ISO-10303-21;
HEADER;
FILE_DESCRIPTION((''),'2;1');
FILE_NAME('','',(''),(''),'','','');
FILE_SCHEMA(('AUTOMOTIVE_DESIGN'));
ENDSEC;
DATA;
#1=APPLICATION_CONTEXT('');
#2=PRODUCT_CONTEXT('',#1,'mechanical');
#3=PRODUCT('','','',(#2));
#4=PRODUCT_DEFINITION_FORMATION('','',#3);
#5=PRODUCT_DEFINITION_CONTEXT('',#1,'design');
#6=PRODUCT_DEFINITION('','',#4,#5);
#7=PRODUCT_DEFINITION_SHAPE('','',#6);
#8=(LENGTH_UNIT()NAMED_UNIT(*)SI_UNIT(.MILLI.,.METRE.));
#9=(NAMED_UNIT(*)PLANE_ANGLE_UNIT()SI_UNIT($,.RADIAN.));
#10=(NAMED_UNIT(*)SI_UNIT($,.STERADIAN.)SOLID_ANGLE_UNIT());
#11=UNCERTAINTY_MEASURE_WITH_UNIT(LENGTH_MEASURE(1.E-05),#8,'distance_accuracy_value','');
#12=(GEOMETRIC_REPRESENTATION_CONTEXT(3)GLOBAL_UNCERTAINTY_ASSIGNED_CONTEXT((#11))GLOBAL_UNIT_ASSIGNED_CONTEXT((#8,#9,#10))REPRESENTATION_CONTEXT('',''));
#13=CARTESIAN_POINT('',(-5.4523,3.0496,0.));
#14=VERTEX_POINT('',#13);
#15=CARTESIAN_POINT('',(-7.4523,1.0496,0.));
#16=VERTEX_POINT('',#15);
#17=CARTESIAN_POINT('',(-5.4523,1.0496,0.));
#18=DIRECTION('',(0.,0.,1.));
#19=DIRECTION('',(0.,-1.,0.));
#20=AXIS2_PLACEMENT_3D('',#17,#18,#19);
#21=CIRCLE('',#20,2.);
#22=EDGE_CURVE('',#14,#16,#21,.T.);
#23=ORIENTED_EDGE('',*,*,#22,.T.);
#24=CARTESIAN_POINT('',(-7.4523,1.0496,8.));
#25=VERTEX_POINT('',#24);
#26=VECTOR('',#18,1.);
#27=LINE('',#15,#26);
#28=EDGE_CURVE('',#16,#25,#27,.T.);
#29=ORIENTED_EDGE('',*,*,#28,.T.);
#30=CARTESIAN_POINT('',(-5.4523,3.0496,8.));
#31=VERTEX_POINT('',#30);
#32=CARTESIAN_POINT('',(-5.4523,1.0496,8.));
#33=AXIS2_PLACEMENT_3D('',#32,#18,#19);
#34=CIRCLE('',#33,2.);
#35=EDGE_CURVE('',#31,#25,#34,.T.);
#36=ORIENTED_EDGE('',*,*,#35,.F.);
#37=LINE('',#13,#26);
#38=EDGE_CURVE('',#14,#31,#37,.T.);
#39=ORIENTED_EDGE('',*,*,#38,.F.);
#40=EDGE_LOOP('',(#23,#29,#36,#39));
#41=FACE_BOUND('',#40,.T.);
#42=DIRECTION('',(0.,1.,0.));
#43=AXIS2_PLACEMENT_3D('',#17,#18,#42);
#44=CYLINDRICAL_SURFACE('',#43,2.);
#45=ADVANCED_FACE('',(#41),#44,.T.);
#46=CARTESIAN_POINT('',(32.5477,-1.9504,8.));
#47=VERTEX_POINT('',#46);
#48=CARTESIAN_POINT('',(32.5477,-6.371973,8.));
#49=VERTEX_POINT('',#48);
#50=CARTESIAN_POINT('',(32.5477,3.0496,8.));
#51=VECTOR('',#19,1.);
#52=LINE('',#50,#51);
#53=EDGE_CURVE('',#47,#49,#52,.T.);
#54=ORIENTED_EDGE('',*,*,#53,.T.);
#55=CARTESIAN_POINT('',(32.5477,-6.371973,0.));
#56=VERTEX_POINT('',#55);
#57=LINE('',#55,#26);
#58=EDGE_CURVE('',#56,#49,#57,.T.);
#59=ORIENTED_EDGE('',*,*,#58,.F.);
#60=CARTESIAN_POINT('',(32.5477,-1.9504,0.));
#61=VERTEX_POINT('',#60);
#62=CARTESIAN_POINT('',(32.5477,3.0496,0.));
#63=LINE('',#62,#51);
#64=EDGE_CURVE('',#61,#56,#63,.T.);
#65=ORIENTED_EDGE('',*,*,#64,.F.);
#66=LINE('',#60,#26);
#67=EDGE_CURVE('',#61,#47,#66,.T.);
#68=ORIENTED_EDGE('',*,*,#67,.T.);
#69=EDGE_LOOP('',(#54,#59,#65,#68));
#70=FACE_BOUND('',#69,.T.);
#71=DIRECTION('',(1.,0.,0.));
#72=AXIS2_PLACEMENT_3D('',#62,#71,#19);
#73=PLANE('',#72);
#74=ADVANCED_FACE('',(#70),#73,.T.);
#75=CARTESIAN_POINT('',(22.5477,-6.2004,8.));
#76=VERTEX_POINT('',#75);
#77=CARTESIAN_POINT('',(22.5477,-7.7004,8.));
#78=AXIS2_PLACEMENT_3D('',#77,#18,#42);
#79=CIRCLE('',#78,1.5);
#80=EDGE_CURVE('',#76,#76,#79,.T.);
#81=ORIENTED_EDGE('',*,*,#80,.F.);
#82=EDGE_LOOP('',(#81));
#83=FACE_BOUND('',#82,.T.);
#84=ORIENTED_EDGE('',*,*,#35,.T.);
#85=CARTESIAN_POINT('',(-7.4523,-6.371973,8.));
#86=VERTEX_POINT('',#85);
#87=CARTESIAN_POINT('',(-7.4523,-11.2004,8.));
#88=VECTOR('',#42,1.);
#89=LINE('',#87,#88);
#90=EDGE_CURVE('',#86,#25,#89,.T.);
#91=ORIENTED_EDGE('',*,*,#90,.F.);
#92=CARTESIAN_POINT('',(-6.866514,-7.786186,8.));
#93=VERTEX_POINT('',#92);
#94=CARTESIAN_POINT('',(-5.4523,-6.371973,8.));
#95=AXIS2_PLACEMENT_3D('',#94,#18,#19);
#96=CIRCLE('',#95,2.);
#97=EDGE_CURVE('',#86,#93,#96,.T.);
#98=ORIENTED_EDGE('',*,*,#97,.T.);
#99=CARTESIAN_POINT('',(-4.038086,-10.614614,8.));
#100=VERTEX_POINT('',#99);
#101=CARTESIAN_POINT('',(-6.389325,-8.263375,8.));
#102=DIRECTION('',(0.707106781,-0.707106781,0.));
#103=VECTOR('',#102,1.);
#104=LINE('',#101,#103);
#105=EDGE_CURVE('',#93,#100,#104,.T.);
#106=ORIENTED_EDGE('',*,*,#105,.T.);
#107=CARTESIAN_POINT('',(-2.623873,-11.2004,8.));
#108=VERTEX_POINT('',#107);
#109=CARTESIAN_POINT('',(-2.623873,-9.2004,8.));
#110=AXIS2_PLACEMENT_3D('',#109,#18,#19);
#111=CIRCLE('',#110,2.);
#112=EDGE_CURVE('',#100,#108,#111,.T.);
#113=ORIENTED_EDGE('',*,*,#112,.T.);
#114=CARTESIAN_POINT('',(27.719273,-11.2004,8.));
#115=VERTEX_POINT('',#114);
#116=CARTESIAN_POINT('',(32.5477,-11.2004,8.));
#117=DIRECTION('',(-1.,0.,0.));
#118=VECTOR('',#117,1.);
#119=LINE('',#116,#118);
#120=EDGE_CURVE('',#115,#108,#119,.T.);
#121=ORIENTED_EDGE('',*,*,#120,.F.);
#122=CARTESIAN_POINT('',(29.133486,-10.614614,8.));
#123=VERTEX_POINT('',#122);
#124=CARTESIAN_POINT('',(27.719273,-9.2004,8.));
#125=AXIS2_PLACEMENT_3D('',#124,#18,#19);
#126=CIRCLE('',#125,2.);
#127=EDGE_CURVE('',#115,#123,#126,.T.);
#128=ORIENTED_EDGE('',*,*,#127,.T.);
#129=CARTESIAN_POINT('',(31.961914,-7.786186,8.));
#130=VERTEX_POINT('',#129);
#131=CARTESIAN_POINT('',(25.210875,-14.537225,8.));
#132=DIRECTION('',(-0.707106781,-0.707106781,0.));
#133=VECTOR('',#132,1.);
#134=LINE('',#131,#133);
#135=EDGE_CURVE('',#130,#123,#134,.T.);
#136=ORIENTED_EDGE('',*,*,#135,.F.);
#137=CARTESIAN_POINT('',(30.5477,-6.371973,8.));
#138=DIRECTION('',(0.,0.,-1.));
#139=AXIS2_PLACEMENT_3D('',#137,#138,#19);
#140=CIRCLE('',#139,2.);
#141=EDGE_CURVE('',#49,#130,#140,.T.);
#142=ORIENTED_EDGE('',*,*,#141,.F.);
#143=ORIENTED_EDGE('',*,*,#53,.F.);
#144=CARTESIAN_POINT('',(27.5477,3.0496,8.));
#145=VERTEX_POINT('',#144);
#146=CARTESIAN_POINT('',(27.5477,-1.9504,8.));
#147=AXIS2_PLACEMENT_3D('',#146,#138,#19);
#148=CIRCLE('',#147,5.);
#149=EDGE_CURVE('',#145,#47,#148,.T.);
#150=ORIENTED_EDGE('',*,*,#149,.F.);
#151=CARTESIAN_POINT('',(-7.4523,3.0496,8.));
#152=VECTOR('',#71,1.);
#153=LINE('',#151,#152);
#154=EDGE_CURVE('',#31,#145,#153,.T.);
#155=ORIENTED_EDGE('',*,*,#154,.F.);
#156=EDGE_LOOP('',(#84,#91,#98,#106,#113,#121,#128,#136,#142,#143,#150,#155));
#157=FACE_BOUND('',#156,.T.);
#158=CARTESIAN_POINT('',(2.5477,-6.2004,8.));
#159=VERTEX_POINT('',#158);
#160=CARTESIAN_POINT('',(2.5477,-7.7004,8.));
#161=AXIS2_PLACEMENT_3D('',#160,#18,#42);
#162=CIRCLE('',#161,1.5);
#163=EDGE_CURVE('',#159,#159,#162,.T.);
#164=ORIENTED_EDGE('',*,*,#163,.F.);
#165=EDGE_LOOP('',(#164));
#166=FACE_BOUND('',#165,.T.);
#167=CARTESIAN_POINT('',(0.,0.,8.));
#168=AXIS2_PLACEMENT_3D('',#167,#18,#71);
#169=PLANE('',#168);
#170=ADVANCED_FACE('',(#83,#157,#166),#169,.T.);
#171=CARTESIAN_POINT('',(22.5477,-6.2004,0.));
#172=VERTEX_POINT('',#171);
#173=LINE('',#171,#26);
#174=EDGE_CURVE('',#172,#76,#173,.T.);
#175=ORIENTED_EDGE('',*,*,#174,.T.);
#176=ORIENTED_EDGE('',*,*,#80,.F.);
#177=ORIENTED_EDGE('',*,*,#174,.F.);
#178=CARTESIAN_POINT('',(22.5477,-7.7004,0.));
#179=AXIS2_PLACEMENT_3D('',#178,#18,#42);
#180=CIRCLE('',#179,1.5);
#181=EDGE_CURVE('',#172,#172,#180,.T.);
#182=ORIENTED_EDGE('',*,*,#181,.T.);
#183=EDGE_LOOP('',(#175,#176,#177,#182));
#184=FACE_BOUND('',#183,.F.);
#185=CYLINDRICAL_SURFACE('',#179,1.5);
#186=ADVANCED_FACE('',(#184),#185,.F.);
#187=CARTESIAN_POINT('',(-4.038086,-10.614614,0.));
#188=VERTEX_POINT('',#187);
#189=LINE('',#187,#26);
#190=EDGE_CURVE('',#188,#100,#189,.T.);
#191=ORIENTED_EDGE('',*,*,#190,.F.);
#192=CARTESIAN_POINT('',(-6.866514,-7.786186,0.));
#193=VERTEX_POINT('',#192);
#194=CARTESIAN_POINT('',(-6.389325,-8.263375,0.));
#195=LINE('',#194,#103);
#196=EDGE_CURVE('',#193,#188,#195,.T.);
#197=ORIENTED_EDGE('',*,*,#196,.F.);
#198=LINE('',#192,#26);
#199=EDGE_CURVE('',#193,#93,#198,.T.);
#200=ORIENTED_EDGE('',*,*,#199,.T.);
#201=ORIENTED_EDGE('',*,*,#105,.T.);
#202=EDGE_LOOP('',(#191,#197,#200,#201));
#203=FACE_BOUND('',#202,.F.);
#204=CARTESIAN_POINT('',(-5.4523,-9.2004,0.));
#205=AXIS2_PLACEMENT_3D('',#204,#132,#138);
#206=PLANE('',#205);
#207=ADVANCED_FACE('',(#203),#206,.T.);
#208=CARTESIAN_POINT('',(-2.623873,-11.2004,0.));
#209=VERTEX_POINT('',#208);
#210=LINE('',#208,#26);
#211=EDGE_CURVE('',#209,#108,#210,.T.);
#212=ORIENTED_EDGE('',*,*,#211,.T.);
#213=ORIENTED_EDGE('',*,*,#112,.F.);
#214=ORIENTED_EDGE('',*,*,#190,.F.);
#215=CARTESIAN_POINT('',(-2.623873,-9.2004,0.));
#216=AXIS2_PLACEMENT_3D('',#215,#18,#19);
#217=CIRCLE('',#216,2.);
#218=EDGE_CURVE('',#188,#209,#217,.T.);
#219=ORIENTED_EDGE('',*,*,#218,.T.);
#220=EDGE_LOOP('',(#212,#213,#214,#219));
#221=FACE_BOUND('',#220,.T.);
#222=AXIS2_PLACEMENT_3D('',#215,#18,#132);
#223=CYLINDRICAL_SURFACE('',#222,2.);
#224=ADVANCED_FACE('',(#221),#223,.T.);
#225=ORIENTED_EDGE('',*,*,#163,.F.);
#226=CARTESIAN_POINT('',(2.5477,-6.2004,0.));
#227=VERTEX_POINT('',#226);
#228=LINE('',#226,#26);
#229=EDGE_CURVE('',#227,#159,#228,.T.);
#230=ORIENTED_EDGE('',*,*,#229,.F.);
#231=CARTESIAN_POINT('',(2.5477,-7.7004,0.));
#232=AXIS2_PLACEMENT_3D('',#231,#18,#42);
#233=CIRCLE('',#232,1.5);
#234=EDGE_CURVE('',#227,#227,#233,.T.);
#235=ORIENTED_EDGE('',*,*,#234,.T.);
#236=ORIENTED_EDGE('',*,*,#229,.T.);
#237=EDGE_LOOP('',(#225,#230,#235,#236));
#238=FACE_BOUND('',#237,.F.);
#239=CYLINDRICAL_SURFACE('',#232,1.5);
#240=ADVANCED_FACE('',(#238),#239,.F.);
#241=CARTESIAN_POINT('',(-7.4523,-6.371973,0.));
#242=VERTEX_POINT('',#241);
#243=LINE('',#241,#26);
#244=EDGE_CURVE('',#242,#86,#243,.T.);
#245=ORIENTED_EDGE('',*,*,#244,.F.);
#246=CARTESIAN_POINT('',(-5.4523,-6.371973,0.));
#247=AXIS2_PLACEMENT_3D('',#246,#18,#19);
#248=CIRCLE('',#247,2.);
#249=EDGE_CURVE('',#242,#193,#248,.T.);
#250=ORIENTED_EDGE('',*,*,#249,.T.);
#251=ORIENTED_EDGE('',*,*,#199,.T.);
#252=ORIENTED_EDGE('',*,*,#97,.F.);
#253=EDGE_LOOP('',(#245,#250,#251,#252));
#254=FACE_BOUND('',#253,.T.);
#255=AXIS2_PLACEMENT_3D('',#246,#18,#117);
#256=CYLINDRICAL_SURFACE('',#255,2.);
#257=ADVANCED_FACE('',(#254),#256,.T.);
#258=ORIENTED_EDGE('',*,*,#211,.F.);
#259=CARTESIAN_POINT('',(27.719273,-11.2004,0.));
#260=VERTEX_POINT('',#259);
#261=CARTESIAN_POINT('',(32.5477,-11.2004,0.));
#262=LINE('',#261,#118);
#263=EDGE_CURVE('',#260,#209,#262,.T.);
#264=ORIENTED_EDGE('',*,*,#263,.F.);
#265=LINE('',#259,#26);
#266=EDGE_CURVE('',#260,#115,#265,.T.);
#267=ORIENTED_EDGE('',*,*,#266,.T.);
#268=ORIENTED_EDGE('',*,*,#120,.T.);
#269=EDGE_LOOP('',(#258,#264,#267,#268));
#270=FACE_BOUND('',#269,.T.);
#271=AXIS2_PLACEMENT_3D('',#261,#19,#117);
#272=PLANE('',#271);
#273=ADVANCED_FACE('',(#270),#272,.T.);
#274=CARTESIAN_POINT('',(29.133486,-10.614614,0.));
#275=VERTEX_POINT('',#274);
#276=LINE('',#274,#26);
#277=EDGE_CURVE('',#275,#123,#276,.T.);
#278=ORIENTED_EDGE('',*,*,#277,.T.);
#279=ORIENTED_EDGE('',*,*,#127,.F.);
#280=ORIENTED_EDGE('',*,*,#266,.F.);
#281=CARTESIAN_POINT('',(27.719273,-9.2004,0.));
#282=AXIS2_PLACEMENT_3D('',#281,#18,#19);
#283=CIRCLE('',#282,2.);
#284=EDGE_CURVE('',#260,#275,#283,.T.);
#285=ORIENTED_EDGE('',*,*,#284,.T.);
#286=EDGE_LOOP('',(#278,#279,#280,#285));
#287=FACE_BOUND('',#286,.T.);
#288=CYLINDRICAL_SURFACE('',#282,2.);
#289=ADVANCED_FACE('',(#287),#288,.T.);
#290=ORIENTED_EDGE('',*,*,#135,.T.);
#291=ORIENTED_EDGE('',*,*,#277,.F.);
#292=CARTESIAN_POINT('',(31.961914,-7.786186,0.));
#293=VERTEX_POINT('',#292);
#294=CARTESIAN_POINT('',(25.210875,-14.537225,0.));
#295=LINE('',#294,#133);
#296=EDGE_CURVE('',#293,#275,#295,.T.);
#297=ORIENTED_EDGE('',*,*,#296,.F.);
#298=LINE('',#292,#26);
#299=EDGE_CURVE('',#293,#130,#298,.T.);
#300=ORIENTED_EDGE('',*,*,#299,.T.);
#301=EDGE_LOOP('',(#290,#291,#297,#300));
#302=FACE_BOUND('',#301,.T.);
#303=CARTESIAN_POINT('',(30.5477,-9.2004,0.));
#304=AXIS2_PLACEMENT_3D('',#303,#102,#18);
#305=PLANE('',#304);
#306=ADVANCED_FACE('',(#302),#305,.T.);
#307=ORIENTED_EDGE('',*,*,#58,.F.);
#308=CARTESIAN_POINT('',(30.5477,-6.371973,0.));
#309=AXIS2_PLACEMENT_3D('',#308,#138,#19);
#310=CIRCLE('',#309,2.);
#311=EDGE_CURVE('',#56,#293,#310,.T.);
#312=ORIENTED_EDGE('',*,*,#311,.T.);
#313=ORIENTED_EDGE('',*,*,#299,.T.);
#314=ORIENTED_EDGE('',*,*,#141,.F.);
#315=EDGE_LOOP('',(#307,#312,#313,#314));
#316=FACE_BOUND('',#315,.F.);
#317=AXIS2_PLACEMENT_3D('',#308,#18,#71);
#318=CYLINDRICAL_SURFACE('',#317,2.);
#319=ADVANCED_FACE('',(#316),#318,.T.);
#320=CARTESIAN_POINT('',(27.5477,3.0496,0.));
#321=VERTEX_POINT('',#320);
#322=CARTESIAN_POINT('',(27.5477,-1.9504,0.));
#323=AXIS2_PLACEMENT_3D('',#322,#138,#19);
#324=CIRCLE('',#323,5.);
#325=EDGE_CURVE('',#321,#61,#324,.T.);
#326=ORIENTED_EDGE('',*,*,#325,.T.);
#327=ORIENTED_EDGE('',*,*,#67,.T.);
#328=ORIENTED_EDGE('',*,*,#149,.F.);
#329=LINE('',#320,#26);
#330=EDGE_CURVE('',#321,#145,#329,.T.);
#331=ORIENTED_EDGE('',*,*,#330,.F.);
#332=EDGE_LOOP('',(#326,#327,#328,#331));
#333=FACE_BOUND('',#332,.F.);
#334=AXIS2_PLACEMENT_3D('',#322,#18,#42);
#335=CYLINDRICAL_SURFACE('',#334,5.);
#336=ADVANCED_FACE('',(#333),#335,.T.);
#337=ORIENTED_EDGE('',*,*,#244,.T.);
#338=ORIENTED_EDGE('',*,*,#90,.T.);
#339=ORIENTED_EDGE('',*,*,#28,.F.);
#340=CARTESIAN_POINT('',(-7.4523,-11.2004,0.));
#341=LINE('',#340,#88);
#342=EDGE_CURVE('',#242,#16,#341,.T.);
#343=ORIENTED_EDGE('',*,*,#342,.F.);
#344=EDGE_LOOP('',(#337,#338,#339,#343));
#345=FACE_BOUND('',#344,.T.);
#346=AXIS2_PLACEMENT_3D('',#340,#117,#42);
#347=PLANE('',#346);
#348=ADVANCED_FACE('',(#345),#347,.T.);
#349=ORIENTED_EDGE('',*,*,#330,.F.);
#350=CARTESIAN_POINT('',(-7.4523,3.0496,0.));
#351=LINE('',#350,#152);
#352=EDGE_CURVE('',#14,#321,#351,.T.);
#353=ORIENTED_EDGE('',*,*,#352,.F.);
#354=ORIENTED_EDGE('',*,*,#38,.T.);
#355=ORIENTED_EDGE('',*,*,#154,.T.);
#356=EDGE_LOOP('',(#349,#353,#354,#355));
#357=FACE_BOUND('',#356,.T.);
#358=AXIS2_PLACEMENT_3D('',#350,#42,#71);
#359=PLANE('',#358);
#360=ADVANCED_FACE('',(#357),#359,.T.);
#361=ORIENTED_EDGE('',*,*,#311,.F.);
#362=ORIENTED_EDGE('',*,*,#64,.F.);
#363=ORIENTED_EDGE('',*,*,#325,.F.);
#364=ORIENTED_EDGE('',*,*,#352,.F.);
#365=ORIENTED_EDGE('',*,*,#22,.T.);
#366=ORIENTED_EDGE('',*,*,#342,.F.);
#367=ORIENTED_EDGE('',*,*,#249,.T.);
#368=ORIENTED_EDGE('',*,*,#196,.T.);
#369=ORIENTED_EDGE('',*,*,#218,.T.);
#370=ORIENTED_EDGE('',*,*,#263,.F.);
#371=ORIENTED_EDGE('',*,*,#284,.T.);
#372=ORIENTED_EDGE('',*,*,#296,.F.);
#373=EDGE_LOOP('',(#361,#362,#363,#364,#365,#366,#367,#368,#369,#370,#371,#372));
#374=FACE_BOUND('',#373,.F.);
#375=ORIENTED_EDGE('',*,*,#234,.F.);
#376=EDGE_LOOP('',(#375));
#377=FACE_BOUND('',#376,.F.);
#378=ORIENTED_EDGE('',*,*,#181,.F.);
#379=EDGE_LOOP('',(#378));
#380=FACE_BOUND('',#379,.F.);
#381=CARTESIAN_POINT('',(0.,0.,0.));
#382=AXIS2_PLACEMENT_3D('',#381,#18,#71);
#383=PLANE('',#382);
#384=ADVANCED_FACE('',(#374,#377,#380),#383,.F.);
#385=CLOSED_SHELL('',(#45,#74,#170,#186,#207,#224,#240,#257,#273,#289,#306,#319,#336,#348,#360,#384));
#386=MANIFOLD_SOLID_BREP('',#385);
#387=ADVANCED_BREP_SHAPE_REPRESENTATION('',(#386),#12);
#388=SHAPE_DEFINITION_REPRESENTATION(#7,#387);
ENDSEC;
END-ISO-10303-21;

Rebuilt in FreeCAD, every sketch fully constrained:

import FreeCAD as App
import Part
import Sketcher
from FreeCAD import Vector


def edges_at(feature, points):
    """Names of the edges that pass closest to the given points."""
    edges = feature.Shape.Edges
    near = lambda p: min(range(len(edges)), key=lambda i: edges[i].distToShape(Part.Vertex(*p))[0])
    return sorted({f"Edge{near(p) + 1}" for p in points})


def add_polygon(sketch, points):
    """Adds a closed chain of lines whose ends are joined by coincident constraints."""
    first, n = sketch.GeometryCount, len(points)
    for a, b in zip(points, points[1:] + points[:1]):
        sketch.addGeometry(Part.LineSegment(App.Vector(*a, 0), App.Vector(*b, 0)), False)
    for i in range(n):
        sketch.addConstraint(Sketcher.Constraint("Coincident", first + i, 2, first + (i + 1) % n, 1))

doc = App.newDocument("Part")
params = doc.addObject("Spreadsheet::Sheet", "Params")
for row, (alias, value) in enumerate([
    ("sketch1_width", "40 mm"),
    ("sketch1_height", "14.25 mm"),
    ("pad1_length", "8 mm"),
    ("sketch2_diameter", "3 mm"),
    ("hole_diameter", "3 mm"),
    ("chamfer_size", "4 mm"),
    ("fillet_radius", "2 mm"),
    ("fillet2_radius", "5 mm"),
    ("fillet3_radius", "2 mm"),
], start=1):
    params.set(f"A{row}", alias)
    params.set(f"B{row}", "=" + value)
    params.setAlias(f"B{row}", alias)

body = doc.addObject("PartDesign::Body", "Body")

sketch1 = doc.addObject("Sketcher::SketchObject", "Sketch")
body.addObject(sketch1)
sketch1.AttachmentSupport = (doc.XY_Plane, [""])
sketch1.MapMode = "FlatFace"
add_polygon(sketch1, [(33, 3), (-7, 3), (-7, -11), (33, -11)])
sketch1.addConstraint(Sketcher.Constraint("Horizontal", 0))
sketch1.addConstraint(Sketcher.Constraint("Vertical", 1))
sketch1.addConstraint(Sketcher.Constraint("Horizontal", 2))
sketch1.addConstraint(Sketcher.Constraint("Vertical", 3))
sketch1.addConstraint(Sketcher.Constraint("DistanceX", 0, 2, 0, 1, 40.0))
sketch1.addConstraint(Sketcher.Constraint("DistanceY", 1, 2, 1, 1, 14.25))
sketch1.addConstraint(Sketcher.Constraint("DistanceX", 0, 2, -1, 1, 7.4523))
sketch1.addConstraint(Sketcher.Constraint("DistanceY", -1, 1, 0, 2, 3.0496))
sketch1.setExpression("Constraints[8]", "Params.sketch1_width")
sketch1.setExpression("Constraints[9]", "Params.sketch1_height")
pad1 = doc.addObject("PartDesign::Pad", "Pad")
body.addObject(pad1)
pad1.Profile = sketch1
pad1.setExpression("Length", "Params.pad1_length")

sketch2 = doc.addObject("Sketcher::SketchObject", "Sketch001")
body.addObject(sketch2)
sketch2.AttachmentSupport = (doc.XY_Plane, [""])
sketch2.MapMode = "FlatFace"
sketch2.addGeometry(Part.Circle(Vector(2.5, -7.7, 0), Vector(0, 0, 1), 1.5), False)
sketch2.addGeometry(Part.Circle(Vector(22.5, -7.7, 0), Vector(0, 0, 1), 1.5), False)
sketch2.addConstraint(Sketcher.Constraint("Equal", 0, 1))
sketch2.addConstraint(Sketcher.Constraint("Horizontal", 0, 3, 1, 3))
sketch2.addConstraint(Sketcher.Constraint("Diameter", 0, 3.0))
sketch2.addConstraint(Sketcher.Constraint("DistanceX", 0, 3, 1, 3, 20.0))
sketch2.addConstraint(Sketcher.Constraint("DistanceX", -1, 1, 0, 3, 2.5477))
sketch2.addConstraint(Sketcher.Constraint("DistanceY", 0, 3, -1, 1, 7.7004))
sketch2.setExpression("Constraints[2]", "Params.sketch2_diameter")
doc.recompute()
hole = doc.addObject("PartDesign::Hole", "Hole")
body.addObject(hole)
hole.Profile = sketch2
hole.ThreadType = "None"
hole.setExpression("Diameter", "Params.hole_diameter")
hole.DepthType = "ThroughAll"
hole.Reversed = True
doc.recompute()

chamfer = doc.addObject("PartDesign::Chamfer", "Chamfer")
body.addObject(chamfer)
chamfer.Base = (hole, edges_at(hole, [(-7.452, -11.2, 4), (32.548, -11.2, 4)]))
chamfer.setExpression("Size", "Params.chamfer_size")
doc.recompute()

fillet = doc.addObject("PartDesign::Fillet", "Fillet")
body.addObject(fillet)
fillet.Base = (chamfer, edges_at(chamfer, [
    (32.548, -7.2, 4),
    (28.548, -11.2, 4),
    (-3.452, -11.2, 4),
    (-7.452, -7.2, 4),
]))
fillet.setExpression("Radius", "Params.fillet_radius")
doc.recompute()

fillet2 = doc.addObject("PartDesign::Fillet", "Fillet001")
body.addObject(fillet2)
fillet2.Base = (fillet, edges_at(fillet, [(32.548, 3.05, 4)]))
fillet2.setExpression("Radius", "Params.fillet2_radius")
doc.recompute()

fillet3 = doc.addObject("PartDesign::Fillet", "Fillet002")
body.addObject(fillet3)
fillet3.Base = (fillet2, edges_at(fillet2, [(-7.452, 3.05, 4)]))
fillet3.setExpression("Radius", "Params.fillet3_radius")

doc.recompute()
